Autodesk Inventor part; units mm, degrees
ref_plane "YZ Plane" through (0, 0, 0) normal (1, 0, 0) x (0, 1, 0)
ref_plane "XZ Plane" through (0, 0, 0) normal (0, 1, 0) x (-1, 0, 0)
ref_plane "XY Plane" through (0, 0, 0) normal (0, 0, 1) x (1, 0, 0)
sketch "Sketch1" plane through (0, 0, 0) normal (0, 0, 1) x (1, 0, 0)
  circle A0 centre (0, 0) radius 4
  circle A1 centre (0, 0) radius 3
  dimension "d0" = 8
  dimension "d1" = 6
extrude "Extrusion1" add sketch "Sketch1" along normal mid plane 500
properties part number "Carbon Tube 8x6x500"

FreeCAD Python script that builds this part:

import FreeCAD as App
import Part
import Sketcher

doc = App.newDocument("Part")
body = doc.addObject("PartDesign::Body", "Body")

# Sketch on XY plane
sketch1 = body.newObject("Sketcher::SketchObject", "Sketch")
sketch1.AttachmentSupport = (doc.getObject("XY_Plane"), [""])
sketch1.MapMode = "FlatFace"
sketch1.addGeometry(Part.Circle(App.Vector(0, 0, 0), App.Vector(0, 0, 1), 4), False)
sketch1.addGeometry(Part.Circle(App.Vector(0, 0, 0), App.Vector(0, 0, 1), 3), False)
sketch1.addConstraint(Sketcher.Constraint("Coincident", 0, 3, -1, 1))
sketch1.addConstraint(Sketcher.Constraint("Coincident", 1, 3, -1, 1))
sketch1.addConstraint(Sketcher.Constraint("Diameter", 0, 8.0))
sketch1.addConstraint(Sketcher.Constraint("Diameter", 1, 6.0))
pad1 = body.newObject("PartDesign::Pad", "Pad")
pad1.Profile = sketch1
pad1.Length = 500
pad1.Midplane = True

doc.recompute()
